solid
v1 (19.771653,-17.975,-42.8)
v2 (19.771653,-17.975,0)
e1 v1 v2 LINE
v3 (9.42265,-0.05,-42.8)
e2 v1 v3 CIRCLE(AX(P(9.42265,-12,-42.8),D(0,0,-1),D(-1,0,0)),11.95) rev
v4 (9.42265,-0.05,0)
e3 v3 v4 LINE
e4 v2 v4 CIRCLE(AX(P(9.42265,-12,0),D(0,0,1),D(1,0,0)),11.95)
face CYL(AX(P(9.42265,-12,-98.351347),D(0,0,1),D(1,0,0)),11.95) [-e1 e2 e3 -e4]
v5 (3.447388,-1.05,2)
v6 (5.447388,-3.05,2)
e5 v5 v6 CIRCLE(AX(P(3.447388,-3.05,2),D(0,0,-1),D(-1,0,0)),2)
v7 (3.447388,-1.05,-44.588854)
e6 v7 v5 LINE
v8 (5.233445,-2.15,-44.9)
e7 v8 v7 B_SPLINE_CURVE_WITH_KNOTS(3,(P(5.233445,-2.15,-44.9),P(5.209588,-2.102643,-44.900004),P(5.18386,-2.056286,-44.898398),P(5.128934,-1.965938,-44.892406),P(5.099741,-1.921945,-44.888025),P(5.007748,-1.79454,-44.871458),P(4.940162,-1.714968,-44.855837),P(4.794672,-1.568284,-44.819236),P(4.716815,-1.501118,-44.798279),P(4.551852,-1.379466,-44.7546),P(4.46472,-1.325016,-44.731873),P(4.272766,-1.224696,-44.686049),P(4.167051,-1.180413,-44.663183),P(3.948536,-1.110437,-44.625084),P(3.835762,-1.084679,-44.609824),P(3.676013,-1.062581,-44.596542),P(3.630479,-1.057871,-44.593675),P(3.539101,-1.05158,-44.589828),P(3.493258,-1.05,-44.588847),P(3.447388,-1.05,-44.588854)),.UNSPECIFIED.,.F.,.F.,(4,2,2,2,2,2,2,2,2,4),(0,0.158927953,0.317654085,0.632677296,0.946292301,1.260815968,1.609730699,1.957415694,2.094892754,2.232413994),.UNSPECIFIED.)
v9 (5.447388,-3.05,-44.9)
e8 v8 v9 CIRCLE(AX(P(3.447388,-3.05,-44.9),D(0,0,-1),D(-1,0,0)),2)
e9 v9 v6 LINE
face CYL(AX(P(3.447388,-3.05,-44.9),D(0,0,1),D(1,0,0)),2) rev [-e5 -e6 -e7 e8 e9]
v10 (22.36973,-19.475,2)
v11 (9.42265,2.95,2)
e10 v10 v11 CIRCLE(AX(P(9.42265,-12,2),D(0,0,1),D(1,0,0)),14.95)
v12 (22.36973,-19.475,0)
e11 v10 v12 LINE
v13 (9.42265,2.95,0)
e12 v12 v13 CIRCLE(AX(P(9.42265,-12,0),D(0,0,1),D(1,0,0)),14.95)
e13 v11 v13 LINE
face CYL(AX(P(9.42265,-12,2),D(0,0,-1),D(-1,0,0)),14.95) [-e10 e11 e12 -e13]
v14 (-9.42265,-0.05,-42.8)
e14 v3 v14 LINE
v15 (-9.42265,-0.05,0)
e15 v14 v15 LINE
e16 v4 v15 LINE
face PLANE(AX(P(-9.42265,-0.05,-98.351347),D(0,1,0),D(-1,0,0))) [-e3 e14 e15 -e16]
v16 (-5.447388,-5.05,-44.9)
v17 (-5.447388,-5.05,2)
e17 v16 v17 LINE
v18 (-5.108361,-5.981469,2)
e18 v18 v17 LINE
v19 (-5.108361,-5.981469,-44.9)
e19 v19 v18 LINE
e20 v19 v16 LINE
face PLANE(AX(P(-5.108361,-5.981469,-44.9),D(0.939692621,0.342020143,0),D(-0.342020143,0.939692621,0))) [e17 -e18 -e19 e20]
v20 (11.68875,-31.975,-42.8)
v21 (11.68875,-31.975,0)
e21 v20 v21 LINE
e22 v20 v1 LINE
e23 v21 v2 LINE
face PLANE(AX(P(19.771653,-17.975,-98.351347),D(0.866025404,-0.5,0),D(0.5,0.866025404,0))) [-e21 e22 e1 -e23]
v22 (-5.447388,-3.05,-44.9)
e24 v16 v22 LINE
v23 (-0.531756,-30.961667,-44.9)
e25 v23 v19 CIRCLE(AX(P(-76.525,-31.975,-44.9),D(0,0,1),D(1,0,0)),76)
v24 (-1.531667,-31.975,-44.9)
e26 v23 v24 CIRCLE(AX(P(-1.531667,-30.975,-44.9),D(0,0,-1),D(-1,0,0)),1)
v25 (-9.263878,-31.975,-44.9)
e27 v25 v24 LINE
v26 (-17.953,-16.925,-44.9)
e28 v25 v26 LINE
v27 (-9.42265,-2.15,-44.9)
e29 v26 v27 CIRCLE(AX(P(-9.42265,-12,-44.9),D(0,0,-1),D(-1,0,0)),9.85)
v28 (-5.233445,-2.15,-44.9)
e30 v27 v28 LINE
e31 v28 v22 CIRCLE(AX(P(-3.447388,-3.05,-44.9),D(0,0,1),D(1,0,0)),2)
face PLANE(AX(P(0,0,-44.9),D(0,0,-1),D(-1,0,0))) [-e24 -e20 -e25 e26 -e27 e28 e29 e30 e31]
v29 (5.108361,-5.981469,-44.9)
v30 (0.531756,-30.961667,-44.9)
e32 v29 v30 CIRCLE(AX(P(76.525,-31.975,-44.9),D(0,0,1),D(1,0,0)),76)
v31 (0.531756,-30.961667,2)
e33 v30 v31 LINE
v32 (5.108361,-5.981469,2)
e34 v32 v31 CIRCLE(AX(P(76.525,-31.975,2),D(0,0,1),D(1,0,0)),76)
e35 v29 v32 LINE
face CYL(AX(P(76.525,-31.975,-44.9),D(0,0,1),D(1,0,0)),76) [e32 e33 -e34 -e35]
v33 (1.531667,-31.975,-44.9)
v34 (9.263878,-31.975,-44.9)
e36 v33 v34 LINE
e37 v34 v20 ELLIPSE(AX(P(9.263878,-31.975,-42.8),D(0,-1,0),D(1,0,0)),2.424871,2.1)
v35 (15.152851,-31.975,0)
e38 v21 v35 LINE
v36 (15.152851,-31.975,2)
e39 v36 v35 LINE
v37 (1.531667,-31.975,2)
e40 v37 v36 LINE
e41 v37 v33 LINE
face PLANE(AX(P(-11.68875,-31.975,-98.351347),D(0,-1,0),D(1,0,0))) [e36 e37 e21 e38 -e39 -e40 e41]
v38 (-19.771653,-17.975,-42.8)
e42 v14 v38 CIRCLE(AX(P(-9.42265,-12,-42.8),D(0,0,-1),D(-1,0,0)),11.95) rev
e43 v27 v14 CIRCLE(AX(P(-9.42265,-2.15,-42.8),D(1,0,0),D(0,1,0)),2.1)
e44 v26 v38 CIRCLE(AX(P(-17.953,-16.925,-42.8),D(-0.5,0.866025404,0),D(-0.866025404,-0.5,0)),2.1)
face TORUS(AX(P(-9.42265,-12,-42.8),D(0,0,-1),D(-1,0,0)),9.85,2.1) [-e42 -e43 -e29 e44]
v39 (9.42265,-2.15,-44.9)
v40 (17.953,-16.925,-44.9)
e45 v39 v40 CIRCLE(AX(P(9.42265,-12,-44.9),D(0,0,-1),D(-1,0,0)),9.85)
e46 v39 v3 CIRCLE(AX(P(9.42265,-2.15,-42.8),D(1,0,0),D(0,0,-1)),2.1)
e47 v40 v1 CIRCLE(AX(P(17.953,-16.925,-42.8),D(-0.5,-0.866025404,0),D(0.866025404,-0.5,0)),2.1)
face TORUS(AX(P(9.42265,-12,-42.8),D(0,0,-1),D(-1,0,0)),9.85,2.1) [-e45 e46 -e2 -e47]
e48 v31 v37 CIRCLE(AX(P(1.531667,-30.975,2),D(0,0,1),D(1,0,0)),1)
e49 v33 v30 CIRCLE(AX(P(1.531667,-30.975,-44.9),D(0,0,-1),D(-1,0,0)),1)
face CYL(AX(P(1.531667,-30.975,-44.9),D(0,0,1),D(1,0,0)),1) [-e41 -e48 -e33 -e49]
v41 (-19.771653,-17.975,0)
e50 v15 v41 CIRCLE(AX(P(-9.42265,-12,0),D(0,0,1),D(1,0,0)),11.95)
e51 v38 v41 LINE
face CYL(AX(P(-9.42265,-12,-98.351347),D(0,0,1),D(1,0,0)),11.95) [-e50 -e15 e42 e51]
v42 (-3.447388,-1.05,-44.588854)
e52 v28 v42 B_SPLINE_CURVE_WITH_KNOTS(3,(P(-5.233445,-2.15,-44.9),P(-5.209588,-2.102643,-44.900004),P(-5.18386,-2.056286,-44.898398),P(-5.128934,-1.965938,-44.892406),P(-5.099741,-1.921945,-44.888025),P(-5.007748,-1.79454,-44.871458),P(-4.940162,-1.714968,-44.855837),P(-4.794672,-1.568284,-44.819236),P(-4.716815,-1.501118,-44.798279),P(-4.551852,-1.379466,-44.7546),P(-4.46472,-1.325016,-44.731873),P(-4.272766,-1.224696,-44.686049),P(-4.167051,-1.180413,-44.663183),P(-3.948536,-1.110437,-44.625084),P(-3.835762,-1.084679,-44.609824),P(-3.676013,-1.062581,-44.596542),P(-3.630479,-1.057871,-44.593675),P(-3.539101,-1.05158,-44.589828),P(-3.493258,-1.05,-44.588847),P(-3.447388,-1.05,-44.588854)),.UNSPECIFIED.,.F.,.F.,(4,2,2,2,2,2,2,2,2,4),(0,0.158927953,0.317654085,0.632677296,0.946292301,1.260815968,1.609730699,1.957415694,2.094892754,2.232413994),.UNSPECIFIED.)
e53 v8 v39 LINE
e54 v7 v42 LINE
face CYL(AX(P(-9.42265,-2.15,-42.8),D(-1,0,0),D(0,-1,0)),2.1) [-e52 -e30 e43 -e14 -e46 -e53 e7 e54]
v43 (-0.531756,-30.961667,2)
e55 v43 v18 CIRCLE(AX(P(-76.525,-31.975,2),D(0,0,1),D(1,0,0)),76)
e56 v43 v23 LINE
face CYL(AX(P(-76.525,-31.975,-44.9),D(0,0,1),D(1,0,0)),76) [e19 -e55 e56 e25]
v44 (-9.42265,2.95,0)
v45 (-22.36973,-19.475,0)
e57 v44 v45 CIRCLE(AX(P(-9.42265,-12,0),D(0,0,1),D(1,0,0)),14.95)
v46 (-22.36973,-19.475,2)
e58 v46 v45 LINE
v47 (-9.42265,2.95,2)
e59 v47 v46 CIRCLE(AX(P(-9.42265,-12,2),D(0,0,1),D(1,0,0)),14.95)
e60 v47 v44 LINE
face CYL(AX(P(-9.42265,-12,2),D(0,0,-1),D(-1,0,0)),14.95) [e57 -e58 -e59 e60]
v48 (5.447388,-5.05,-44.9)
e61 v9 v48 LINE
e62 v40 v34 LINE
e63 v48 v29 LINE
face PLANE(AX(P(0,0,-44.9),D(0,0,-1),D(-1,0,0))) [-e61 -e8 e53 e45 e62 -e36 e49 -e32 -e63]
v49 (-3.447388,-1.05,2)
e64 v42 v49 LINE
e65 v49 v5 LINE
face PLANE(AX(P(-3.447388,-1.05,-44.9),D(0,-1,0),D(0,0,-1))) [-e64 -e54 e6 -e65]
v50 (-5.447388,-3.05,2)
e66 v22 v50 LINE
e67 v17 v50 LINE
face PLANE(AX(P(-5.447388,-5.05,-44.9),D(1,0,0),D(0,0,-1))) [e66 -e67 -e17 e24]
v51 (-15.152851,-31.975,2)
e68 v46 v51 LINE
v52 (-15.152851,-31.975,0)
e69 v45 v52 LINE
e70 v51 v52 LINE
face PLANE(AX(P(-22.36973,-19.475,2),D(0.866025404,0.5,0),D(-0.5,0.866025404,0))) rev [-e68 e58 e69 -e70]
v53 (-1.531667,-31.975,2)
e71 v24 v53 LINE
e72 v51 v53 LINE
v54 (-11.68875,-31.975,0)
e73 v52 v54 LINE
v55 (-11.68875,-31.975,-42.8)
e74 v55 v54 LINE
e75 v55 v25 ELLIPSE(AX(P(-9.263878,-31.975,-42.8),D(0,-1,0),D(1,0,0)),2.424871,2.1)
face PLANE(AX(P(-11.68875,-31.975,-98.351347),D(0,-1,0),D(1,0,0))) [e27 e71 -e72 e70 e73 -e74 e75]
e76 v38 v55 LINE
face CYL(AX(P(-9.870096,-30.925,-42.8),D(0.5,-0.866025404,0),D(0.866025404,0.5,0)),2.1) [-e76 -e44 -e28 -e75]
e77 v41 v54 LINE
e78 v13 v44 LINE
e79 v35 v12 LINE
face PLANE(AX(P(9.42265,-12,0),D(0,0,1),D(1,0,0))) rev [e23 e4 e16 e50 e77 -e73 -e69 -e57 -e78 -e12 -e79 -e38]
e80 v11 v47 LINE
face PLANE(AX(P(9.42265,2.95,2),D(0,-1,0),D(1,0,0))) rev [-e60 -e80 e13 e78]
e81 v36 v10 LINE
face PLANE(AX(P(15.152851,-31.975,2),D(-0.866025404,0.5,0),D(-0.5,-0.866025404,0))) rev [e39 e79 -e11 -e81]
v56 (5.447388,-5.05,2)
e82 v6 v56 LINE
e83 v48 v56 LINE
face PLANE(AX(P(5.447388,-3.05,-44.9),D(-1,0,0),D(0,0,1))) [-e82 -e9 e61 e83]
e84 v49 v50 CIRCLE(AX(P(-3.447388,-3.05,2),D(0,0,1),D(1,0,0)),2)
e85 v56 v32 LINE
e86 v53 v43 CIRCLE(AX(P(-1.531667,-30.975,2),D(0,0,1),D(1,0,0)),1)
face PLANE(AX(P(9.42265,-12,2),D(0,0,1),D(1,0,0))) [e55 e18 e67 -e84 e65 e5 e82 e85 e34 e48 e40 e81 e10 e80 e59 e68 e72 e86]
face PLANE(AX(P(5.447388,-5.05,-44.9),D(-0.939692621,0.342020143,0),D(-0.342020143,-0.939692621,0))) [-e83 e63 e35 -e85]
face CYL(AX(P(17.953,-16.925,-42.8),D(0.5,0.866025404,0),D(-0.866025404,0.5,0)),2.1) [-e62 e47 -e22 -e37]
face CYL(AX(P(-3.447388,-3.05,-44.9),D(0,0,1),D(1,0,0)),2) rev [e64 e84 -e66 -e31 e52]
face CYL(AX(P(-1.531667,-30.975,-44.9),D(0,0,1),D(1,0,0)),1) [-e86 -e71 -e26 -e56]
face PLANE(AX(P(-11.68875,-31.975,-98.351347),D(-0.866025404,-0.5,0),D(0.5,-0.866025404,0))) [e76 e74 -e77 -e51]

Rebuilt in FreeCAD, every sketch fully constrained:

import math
import FreeCAD as App
import Part
import Sketcher

V = App.Vector
Q = App.Units.Quantity


def edges_at(feature, points):
    """Names of the edges that pass closest to the given points."""
    edges = feature.Shape.Edges
    near = lambda p: min(range(len(edges)), key=lambda i: edges[i].distToShape(Part.Vertex(*p))[0])
    return sorted({f"Edge{near(p) + 1}" for p in points})

doc = App.newDocument("Part")
params = doc.addObject("Spreadsheet::Sheet", "Params")
for row, (alias, value) in enumerate([
    ("sketch1_radius", "11.95 mm"),
    ("pad1_length", "44.9 mm"),
    ("fillet_radius", "2.1 mm"),
    ("sketch2_radius", "14.95 mm"),
    ("pad2_length", "2 mm"),
    ("sketch3_radius", "2 mm"),
    ("sketch3_radius2", "76 mm"),
    ("sketch3_height", "2 mm"),
    ("sketch3_width", "1.05 mm"),
    ("fillet2_radius", "1 mm"),
], start=1):
    params.set(f"A{row}", alias)
    params.set(f"B{row}", "=" + value)
    params.setAlias(f"B{row}", alias)

body = doc.addObject("PartDesign::Body", "Body")

# Sketch on XY plane
sketch1 = body.newObject("Sketcher::SketchObject", "Sketch")
sketch1.AttachmentSupport = (doc.getObject("XY_Plane"), [""])
sketch1.MapMode = "FlatFace"
sketch1.addGeometry(Part.LineSegment(V(-20, -18, 0), V(-12, -32, 0)), False)
sketch1.addGeometry(Part.LineSegment(V(-12, -32, 0), V(12, -32, 0)), False)
sketch1.addGeometry(Part.LineSegment(V(12, -32, 0), V(20, -18, 0)), False)
sketch1.addGeometry(Part.ArcOfCircle(Part.Circle(V(9, -12, 0), V(0, 0, 1), 12), math.radians(-30), math.radians(90)), False)
sketch1.addGeometry(Part.LineSegment(V(9, 0, 0), V(-9, 0, 0)), False)
sketch1.addGeometry(Part.ArcOfCircle(Part.Circle(V(-9, -12, 0), V(0, 0, 1), 12), math.radians(90), math.radians(210)), False)
sketch1.addConstraint(Sketcher.Constraint("Coincident", 0, 2, 1, 1))
sketch1.addConstraint(Sketcher.Constraint("Coincident", 1, 2, 2, 1))
sketch1.addConstraint(Sketcher.Constraint("Tangent", 2, 2, 3, 1))
sketch1.addConstraint(Sketcher.Constraint("Tangent", 3, 2, 4, 1))
sketch1.addConstraint(Sketcher.Constraint("Tangent", 4, 2, 5, 1))
sketch1.addConstraint(Sketcher.Constraint("Tangent", 5, 2, 0, 1))
sketch1.addConstraint(Sketcher.Constraint("Horizontal", 1))
sketch1.addConstraint(Sketcher.Constraint("Horizontal", 4))
sketch1.addConstraint(Sketcher.Constraint("Equal", 3, 5))
sketch1.addConstraint(Sketcher.Constraint("Symmetric", 2, 2, 5, 2, -2))
sketch1.addConstraint(Sketcher.Constraint("Angle", 0, Q("-60 deg")))
sketch1.addConstraint(Sketcher.Constraint("Radius", 3, 11.95))
sketch1.addConstraint(Sketcher.Constraint("DistanceY", 3, 3, -1, 1, 12.0))
sketch1.addConstraint(Sketcher.Constraint("DistanceY", 1, 2, 2, 2, 14.0))
sketch1.addConstraint(Sketcher.Constraint("DistanceX", 1, 1, 1, 2, 23.377499))
sketch1.setExpression("Constraints[11]", "Params.sketch1_radius")
pad1 = body.newObject("PartDesign::Pad", "Pad")
pad1.Profile = sketch1
pad1.setExpression("Length", "Params.pad1_length")
pad1.Reversed = True
doc.recompute()

fillet = body.newObject("PartDesign::Fillet", "Fillet")
fillet.Base = (pad1, edges_at(pad1, [
    (15.73, -24.975, -44.9),
    (19.772, -6.025, -44.9),
    (0, -0.05, -44.9),
    (-19.772, -6.025, -44.9),
    (-15.73, -24.975, -44.9),
]))
fillet.setExpression("Radius", "Params.fillet_radius")

# Sketch on XY plane
sketch2 = body.newObject("Sketcher::SketchObject", "Sketch001")
sketch2.AttachmentSupport = (doc.getObject("XY_Plane"), [""])
sketch2.MapMode = "FlatFace"
sketch2.addGeometry(Part.LineSegment(V(15, -32, 0), V(22, -19, 0)), False)
sketch2.addGeometry(Part.ArcOfCircle(Part.Circle(V(9, -12, 0), V(0, 0, 1), 15), math.radians(-30), math.radians(90)), False)
sketch2.addGeometry(Part.LineSegment(V(9, 3, 0), V(-9, 3, 0)), False)
sketch2.addGeometry(Part.ArcOfCircle(Part.Circle(V(-9, -12, 0), V(0, 0, 1), 15), math.radians(90), math.radians(210)), False)
sketch2.addGeometry(Part.LineSegment(V(-22, -19, 0), V(-15, -32, 0)), False)
sketch2.addGeometry(Part.LineSegment(V(-15, -32, 0), V(15, -32, 0)), False)
sketch2.addConstraint(Sketcher.Constraint("Tangent", 0, 2, 1, 1))
sketch2.addConstraint(Sketcher.Constraint("Tangent", 1, 2, 2, 1))
sketch2.addConstraint(Sketcher.Constraint("Tangent", 2, 2, 3, 1))
sketch2.addConstraint(Sketcher.Constraint("Tangent", 3, 2, 4, 1))
sketch2.addConstraint(Sketcher.Constraint("Coincident", 4, 2, 5, 1))
sketch2.addConstraint(Sketcher.Constraint("Coincident", 5, 2, 0, 1))
sketch2.addConstraint(Sketcher.Constraint("Horizontal", 2))
sketch2.addConstraint(Sketcher.Constraint("Horizontal", 5))
sketch2.addConstraint(Sketcher.Constraint("Equal", 1, 3))
sketch2.addConstraint(Sketcher.Constraint("Symmetric", 0, 2, 3, 2, -2))
sketch2.addConstraint(Sketcher.Constraint("Angle", 0, Q("60 deg")))
sketch2.addConstraint(Sketcher.Constraint("Radius", 1, 14.95))
sketch2.addConstraint(Sketcher.Constraint("DistanceY", 1, 3, -1, 1, 12.0))
sketch2.addConstraint(Sketcher.Constraint("DistanceY", 4, 2, 3, 2, 12.5))
sketch2.addConstraint(Sketcher.Constraint("DistanceX", 2, 2, 2, 1, 18.845299))
sketch2.setExpression("Constraints[11]", "Params.sketch2_radius")
pad2 = body.newObject("PartDesign::Pad", "Pad001")
pad2.Profile = sketch2
pad2.setExpression("Length", "Params.pad2_length")

# Sketch on XY plane
sketch3 = body.newObject("Sketcher::SketchObject", "Sketch002")
sketch3.AttachmentSupport = (doc.getObject("XY_Plane"), [""])
sketch3.MapMode = "FlatFace"
sketch3.addGeometry(Part.LineSegment(V(3.4, -1.1, 0), V(-3.4, -1.1, 0)), False)
sketch3.addGeometry(Part.ArcOfCircle(Part.Circle(V(-3.4, -3, 0), V(0, 0, 1), 2), math.radians(90), math.radians(180)), False)
sketch3.addGeometry(Part.LineSegment(V(-5.4, -3, 0), V(-5.4, -5, 0)), False)
sketch3.addGeometry(Part.LineSegment(V(-5.4, -5, 0), V(-5.1, -6, 0)), False)
sketch3.addGeometry(Part.ArcOfCircle(Part.Circle(V(-76.5, -32, 0), V(0, 0, 1), 76), math.radians(0), math.radians(20)), False)
sketch3.addGeometry(Part.LineSegment(V(-0.5, -32, 0), V(0.5, -32, 0)), False)
sketch3.addGeometry(Part.ArcOfCircle(Part.Circle(V(76.5, -32, 0), V(0, 0, 1), 76), math.radians(160), math.radians(180)), False)
sketch3.addGeometry(Part.LineSegment(V(5.1, -6, 0), V(5.4, -5, 0)), False)
sketch3.addGeometry(Part.LineSegment(V(5.4, -5, 0), V(5.4, -3, 0)), False)
sketch3.addGeometry(Part.ArcOfCircle(Part.Circle(V(3.4, -3, 0), V(0, 0, 1), 2), math.radians(0), math.radians(90)), False)
sketch3.addConstraint(Sketcher.Constraint("Tangent", 0, 2, 1, 1))
sketch3.addConstraint(Sketcher.Constraint("Tangent", 1, 2, 2, 1))
sketch3.addConstraint(Sketcher.Constraint("Coincident", 2, 2, 3, 1))
sketch3.addConstraint(Sketcher.Constraint("Tangent", 3, 2, 4, 2))
sketch3.addConstraint(Sketcher.Constraint("Coincident", 4, 1, 5, 1))
sketch3.addConstraint(Sketcher.Constraint("Coincident", 5, 2, 6, 2))
sketch3.addConstraint(Sketcher.Constraint("Tangent", 6, 1, 7, 1))
sketch3.addConstraint(Sketcher.Constraint("Coincident", 7, 2, 8, 1))
sketch3.addConstraint(Sketcher.Constraint("Tangent", 8, 2, 9, 1))
sketch3.addConstraint(Sketcher.Constraint("Tangent", 9, 2, 0, 1))
sketch3.addConstraint(Sketcher.Constraint("Horizontal", 0))
sketch3.addConstraint(Sketcher.Constraint("Vertical", 2))
sketch3.addConstraint(Sketcher.Constraint("Horizontal", 5))
sketch3.addConstraint(Sketcher.Constraint("Vertical", 8))
sketch3.addConstraint(Sketcher.Constraint("Equal", 4, 6))
sketch3.addConstraint(Sketcher.Constraint("Equal", 1, 9))
sketch3.addConstraint(Sketcher.Constraint("Symmetric", 4, 3, 6, 3, -2))
sketch3.addConstraint(Sketcher.Constraint("Symmetric", 2, 2, 7, 2, -2))
sketch3.addConstraint(Sketcher.Constraint("Horizontal", 6, 3, 4, 1))
sketch3.addConstraint(Sketcher.Constraint("Radius", 1, 2.0))
sketch3.addConstraint(Sketcher.Constraint("Radius", 4, 76.0))
sketch3.addConstraint(Sketcher.Constraint("DistanceY", 2, 2, 2, 1, 2.0))
sketch3.addConstraint(Sketcher.Constraint("Angle", 3, Q("-70 deg")))
sketch3.addConstraint(Sketcher.Constraint("DistanceX", 5, 1, 5, 2, 1.05))
sketch3.addConstraint(Sketcher.Constraint("DistanceY", 1, 3, -1, 1, 3.05))
sketch3.addConstraint(Sketcher.Constraint("DistanceY", 4, 3, -1, 1, 31.975))
sketch3.setExpression("Constraints[19]", "Params.sketch3_radius")
sketch3.setExpression("Constraints[20]", "Params.sketch3_radius2")
sketch3.setExpression("Constraints[21]", "Params.sketch3_height")
sketch3.setExpression("Constraints[23]", "Params.sketch3_width")
pocket1 = body.newObject("PartDesign::Pocket", "Pocket")
pocket1.Profile = sketch3
pocket1.Type = "ThroughAll"
pocket1.Midplane = True
doc.recompute()

fillet2 = body.newObject("PartDesign::Fillet", "Fillet001")
fillet2.Base = (pocket1, edges_at(pocket1, [(-0.525, -31.975, -21.45), (0.525, -31.975, -21.45)]))
fillet2.setExpression("Radius", "Params.fillet2_radius")

doc.recompute()
